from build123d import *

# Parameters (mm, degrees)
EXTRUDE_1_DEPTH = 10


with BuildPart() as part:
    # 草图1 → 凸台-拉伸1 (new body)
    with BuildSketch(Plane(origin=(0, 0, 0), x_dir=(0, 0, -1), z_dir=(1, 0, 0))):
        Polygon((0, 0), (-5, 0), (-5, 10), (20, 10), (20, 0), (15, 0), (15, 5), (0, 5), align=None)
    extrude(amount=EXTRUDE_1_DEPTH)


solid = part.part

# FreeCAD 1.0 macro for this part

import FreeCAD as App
import Part
import Sketcher

V = App.Vector
Q = App.Units.Quantity

doc = App.newDocument("Part")
body = doc.addObject("PartDesign::Body", "Body")

# Sketch on YZ plane
sketch1 = doc.addObject("Sketcher::SketchObject", "Sketch")
body.addObject(sketch1)
sketch1.AttachmentSupport = (doc.YZ_Plane, [""])
sketch1.MapMode = "FlatFace"
sketch1.addGeometry(Part.LineSegment(V(0, 5, 0), V(0, 0, 0)), False)
sketch1.addGeometry(Part.LineSegment(V(0, 0, 0), V(5, 0, 0)), False)
sketch1.addGeometry(Part.LineSegment(V(5, 0, 0), V(5, -15, 0)), False)
sketch1.addGeometry(Part.LineSegment(V(5, -15, 0), V(0, -15, 0)), False)
sketch1.addGeometry(Part.LineSegment(V(0, -15, 0), V(0, -20, 0)), False)
sketch1.addGeometry(Part.LineSegment(V(0, -20, 0), V(10, -20, 0)), False)
sketch1.addGeometry(Part.LineSegment(V(10, -20, 0), V(10, 5, 0)), False)
sketch1.addGeometry(Part.LineSegment(V(10, 5, 0), V(0, 5, 0)), False)
sketch1.addConstraint(Sketcher.Constraint("Coincident", 0, 2, 1, 1))
sketch1.addConstraint(Sketcher.Constraint("Coincident", 1, 2, 2, 1))
sketch1.addConstraint(Sketcher.Constraint("Coincident", 2, 2, 3, 1))
sketch1.addConstraint(Sketcher.Constraint("Coincident", 3, 2, 4, 1))
sketch1.addConstraint(Sketcher.Constraint("Coincident", 4, 2, 5, 1))
sketch1.addConstraint(Sketcher.Constraint("Coincident", 5, 2, 6, 1))
sketch1.addConstraint(Sketcher.Constraint("Coincident", 6, 2, 7, 1))
sketch1.addConstraint(Sketcher.Constraint("Coincident", 7, 2, 0, 1))
sketch1.addConstraint(Sketcher.Constraint("Vertical", 0))
sketch1.addConstraint(Sketcher.Constraint("Horizontal", 1))
sketch1.addConstraint(Sketcher.Constraint("Vertical", 2))
sketch1.addConstraint(Sketcher.Constraint("Horizontal", 3))
sketch1.addConstraint(Sketcher.Constraint("Vertical", 4))
sketch1.addConstraint(Sketcher.Constraint("Horizontal", 5))
sketch1.addConstraint(Sketcher.Constraint("Vertical", 6))
sketch1.addConstraint(Sketcher.Constraint("Horizontal", 7))
sketch1.addConstraint(Sketcher.Constraint("Coincident", 0, 2, -1, 1))
sketch1.addConstraint(Sketcher.Constraint("PointOnObject", 3, 2, -2))
sketch1.addConstraint(Sketcher.Constraint("Equal", 3, 0))
sketch1.addConstraint(Sketcher.Constraint("Equal", 0, 4))
sketch1.addConstraint(Sketcher.Constraint("DistanceX", 1, 1, 1, 2, Q("5 mm")))
sketch1.addConstraint(Sketcher.Constraint("DistanceX", 5, 1, 5, 2, Q("10 mm")))
sketch1.addConstraint(Sketcher.Constraint("DistanceY", 2, 2, 2, 1, Q("15 mm")))
pad1 = doc.addObject("PartDesign::Pad", "Pad")
body.addObject(pad1)
pad1.Profile = sketch1
pad1.Length = 10

doc.recompute()
